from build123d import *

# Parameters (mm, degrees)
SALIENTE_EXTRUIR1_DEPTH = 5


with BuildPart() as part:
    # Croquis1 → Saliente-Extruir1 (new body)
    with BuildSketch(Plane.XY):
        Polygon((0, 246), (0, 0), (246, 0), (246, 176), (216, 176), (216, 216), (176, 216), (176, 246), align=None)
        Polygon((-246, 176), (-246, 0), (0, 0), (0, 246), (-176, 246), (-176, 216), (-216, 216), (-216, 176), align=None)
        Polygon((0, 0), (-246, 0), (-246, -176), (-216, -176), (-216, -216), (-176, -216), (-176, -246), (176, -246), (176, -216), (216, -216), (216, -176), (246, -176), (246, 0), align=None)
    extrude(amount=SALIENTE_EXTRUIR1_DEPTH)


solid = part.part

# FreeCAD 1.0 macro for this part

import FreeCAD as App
import Part
import Sketcher
from FreeCAD import Vector


def add_polygon(sketch, points):
    """Adds a closed chain of lines whose ends are joined by coincident constraints."""
    first, n = sketch.GeometryCount, len(points)
    for a, b in zip(points, points[1:] + points[:1]):
        sketch.addGeometry(Part.LineSegment(App.Vector(*a, 0), App.Vector(*b, 0)), False)
    for i in range(n):
        sketch.addConstraint(Sketcher.Constraint("Coincident", first + i, 2, first + (i + 1) % n, 1))

doc = App.newDocument("Part")
body = doc.addObject("PartDesign::Body", "Body")

# Sketch on XY plane
sketch1 = doc.addObject("Sketcher::SketchObject", "Sketch")
body.addObject(sketch1)
sketch1.AttachmentSupport = (doc.XY_Plane, [""])
sketch1.MapMode = "FlatFace"
add_polygon(sketch1, [(246, 176), (216, 176), (216, 216), (176, 216), (176, 246), (-176, 246), (-176, 216), (-216, 216), (-216, 176), (-246, 176), (-246, -176), (-216, -176), (-216, -216), (-176, -216), (-176, -246), (176, -246), (176, -216), (216, -216), (216, -176), (246, -176)])  # lines 0-19
sketch1.addConstraint(Sketcher.Constraint("Horizontal", 0))
sketch1.addConstraint(Sketcher.Constraint("Vertical", 1))
sketch1.addConstraint(Sketcher.Constraint("Horizontal", 2))
sketch1.addConstraint(Sketcher.Constraint("Vertical", 3))
sketch1.addConstraint(Sketcher.Constraint("Horizontal", 4))
sketch1.addConstraint(Sketcher.Constraint("Vertical", 5))
sketch1.addConstraint(Sketcher.Constraint("Horizontal", 6))
sketch1.addConstraint(Sketcher.Constraint("Vertical", 7))
sketch1.addConstraint(Sketcher.Constraint("Horizontal", 8))
sketch1.addConstraint(Sketcher.Constraint("Vertical", 9))
sketch1.addConstraint(Sketcher.Constraint("Horizontal", 10))
sketch1.addConstraint(Sketcher.Constraint("Vertical", 11))
sketch1.addConstraint(Sketcher.Constraint("Horizontal", 12))
sketch1.addConstraint(Sketcher.Constraint("Vertical", 13))
sketch1.addConstraint(Sketcher.Constraint("Horizontal", 14))
sketch1.addConstraint(Sketcher.Constraint("Vertical", 15))
sketch1.addConstraint(Sketcher.Constraint("Horizontal", 16))
sketch1.addConstraint(Sketcher.Constraint("Vertical", 17))
sketch1.addConstraint(Sketcher.Constraint("Horizontal", 18))
sketch1.addConstraint(Sketcher.Constraint("Vertical", 19))
sketch1.addConstraint(Sketcher.Constraint("Symmetric", 0, 2, 10, 2, -1, 1))
sketch1.addConstraint(Sketcher.Constraint("Symmetric", 2, 2, 12, 2, -1, 1))
sketch1.addConstraint(Sketcher.Constraint("Symmetric", 4, 2, 14, 2, -1, 1))
sketch1.addConstraint(Sketcher.Constraint("Symmetric", 6, 2, 16, 2, -1, 1))
sketch1.addConstraint(Sketcher.Constraint("Symmetric", 8, 2, 18, 2, -1, 1))
sketch1.addConstraint(Sketcher.Constraint("Symmetric", 2, 2, 5, 2, -2))
sketch1.addConstraint(Sketcher.Constraint("Symmetric", 0, 2, 7, 2, -2))
sketch1.addConstraint(Sketcher.Constraint("Equal", 16, 1))
sketch1.addConstraint(Sketcher.Constraint("Equal", 18, 3))
sketch1.addConstraint(Sketcher.Constraint("Equal", 14, 9))
sketch1.addConstraint(Sketcher.Constraint("DistanceX", 0, 2, 0, 1, 30.0))
sketch1.addConstraint(Sketcher.Constraint("DistanceX", 2, 2, 2, 1, 40.0))
sketch1.addConstraint(Sketcher.Constraint("DistanceX", 4, 2, 4, 1, 352.0))
pad1 = doc.addObject("PartDesign::Pad", "Pad")
body.addObject(pad1)
pad1.Profile = sketch1
pad1.Length = 5

doc.recompute()
